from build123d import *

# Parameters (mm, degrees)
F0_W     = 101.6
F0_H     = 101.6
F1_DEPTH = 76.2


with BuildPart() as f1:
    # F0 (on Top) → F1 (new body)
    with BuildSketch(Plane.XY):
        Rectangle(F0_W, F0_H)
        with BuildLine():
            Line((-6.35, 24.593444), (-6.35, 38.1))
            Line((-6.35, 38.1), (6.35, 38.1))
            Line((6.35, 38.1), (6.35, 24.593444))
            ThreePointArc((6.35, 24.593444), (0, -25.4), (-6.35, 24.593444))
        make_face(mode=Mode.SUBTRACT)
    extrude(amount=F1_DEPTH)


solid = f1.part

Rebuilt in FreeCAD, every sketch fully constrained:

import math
import FreeCAD as App
import Part
import Sketcher
Q = App.Units.Quantity

doc = App.newDocument("Part")
body = doc.addObject("PartDesign::Body", "Body")

# Sketch on XY plane
sketch1 = body.newObject("Sketcher::SketchObject", "Sketch")
sketch1.AttachmentSupport = (doc.getObject("XY_Plane"), [""])
sketch1.MapMode = "FlatFace"
sketch1.addGeometry([
    Part.LineSegment(App.Vector(-51, 51, 0), App.Vector(-51, -51, 0)),  # 0
    Part.LineSegment(App.Vector(-51, -51, 0), App.Vector(51, -51, 0)),  # 1
    Part.LineSegment(App.Vector(51, -51, 0), App.Vector(51, 51, 0)),  # 2
    Part.LineSegment(App.Vector(51, 51, 0), App.Vector(-51, 51, 0)),  # 3
    Part.ArcOfCircle(Part.Circle(App.Vector(0, 0, 0), App.Vector(0, 0, 1), 25), math.radians(104), math.radians(436)),  # 4
    Part.LineSegment(App.Vector(-6, 25, 0), App.Vector(-6, 38, 0)),  # 5
    Part.LineSegment(App.Vector(-6, 38, 0), App.Vector(6, 38, 0)),  # 6
    Part.LineSegment(App.Vector(6, 38, 0), App.Vector(6, 25, 0)),  # 7
], False)
sketch1.addConstraint([
    Sketcher.Constraint("Coincident", 0, 2, 1, 1),
    Sketcher.Constraint("Coincident", 1, 2, 2, 1),
    Sketcher.Constraint("Coincident", 2, 2, 3, 1),
    Sketcher.Constraint("Coincident", 3, 2, 0, 1),
    Sketcher.Constraint("Coincident", 4, 1, 5, 1),
    Sketcher.Constraint("Coincident", 5, 2, 6, 1),
    Sketcher.Constraint("Coincident", 6, 2, 7, 1),
    Sketcher.Constraint("Coincident", 7, 2, 4, 2),
    Sketcher.Constraint("Vertical", 0),
    Sketcher.Constraint("Horizontal", 1),
    Sketcher.Constraint("Vertical", 2),
    Sketcher.Constraint("Horizontal", 3),
    Sketcher.Constraint("Vertical", 5),
    Sketcher.Constraint("Horizontal", 6),
    Sketcher.Constraint("Vertical", 7),
    Sketcher.Constraint("Coincident", 4, 3, -1, 1),
    Sketcher.Constraint("Symmetric", 0, 2, 2, 2, -1, 1),
    Sketcher.Constraint("Horizontal", 4, 1, 7, 2),
    Sketcher.Constraint("Equal", 3, 0),
    Sketcher.Constraint("Radius", 4, Q("1 in")),
    Sketcher.Constraint("DistanceX", 1, 1, 1, 2, Q("4 in")),
    Sketcher.Constraint("DistanceX", 6, 1, 6, 2, Q("0.5 in")),
    Sketcher.Constraint("DistanceY", -1, 1, 5, 2, Q("1.5 in")),
])
pad1 = body.newObject("PartDesign::Pad", "Pad")
pad1.Profile = sketch1
pad1.Length = Q("3 in")

doc.recompute()
